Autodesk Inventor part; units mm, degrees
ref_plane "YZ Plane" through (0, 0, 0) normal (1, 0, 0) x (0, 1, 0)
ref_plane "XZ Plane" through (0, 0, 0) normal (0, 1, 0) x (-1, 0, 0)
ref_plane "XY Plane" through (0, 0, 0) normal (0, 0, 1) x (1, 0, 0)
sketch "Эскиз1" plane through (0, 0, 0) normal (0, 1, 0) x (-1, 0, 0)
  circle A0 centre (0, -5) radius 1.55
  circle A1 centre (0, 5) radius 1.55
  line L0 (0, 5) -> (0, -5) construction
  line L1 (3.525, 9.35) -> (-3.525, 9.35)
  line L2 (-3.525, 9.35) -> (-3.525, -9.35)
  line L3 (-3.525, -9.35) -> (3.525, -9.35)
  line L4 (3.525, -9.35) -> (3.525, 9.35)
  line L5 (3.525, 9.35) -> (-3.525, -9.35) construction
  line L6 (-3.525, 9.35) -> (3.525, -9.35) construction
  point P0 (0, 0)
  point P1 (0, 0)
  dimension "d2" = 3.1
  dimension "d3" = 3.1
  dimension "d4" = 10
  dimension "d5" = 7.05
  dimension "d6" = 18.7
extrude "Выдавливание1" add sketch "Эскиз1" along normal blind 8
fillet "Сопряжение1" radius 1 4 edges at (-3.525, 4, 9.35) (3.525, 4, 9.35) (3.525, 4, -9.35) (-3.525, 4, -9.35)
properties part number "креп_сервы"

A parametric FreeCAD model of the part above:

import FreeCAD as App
import Part
import Sketcher

V = App.Vector
Q = App.Units.Quantity


def edges_at(feature, points):
    """Names of the edges that pass closest to the given points."""
    edges = feature.Shape.Edges
    near = lambda p: min(range(len(edges)), key=lambda i: edges[i].distToShape(Part.Vertex(*p))[0])
    return sorted({f"Edge{near(p) + 1}" for p in points})

doc = App.newDocument("Part")
body = doc.addObject("PartDesign::Body", "Body")

sketch1 = body.newObject("Sketcher::SketchObject", "Sketch")
sketch1.AttachmentSupport = (doc.getObject("XZ_Plane"), [""])
sketch1.MapMode = "FlatFace"
sketch1.addGeometry(Part.LineSegment(V(-3.525, -9.35, 0), V(-3.525, 9.35, 0)), False)
sketch1.addGeometry(Part.LineSegment(V(-3.525, 9.35, 0), V(3.525, 9.35, 0)), False)
sketch1.addGeometry(Part.LineSegment(V(3.525, 9.35, 0), V(3.525, -9.35, 0)), False)
sketch1.addGeometry(Part.LineSegment(V(3.525, -9.35, 0), V(-3.525, -9.35, 0)), False)
sketch1.addGeometry(Part.Circle(V(0, -5, 0), V(0, 0, 1), 1.55), False)
sketch1.addGeometry(Part.Circle(V(0, 5, 0), V(0, 0, 1), 1.55), False)
sketch1.addConstraint(Sketcher.Constraint("Coincident", 0, 2, 1, 1))
sketch1.addConstraint(Sketcher.Constraint("Coincident", 1, 2, 2, 1))
sketch1.addConstraint(Sketcher.Constraint("Coincident", 2, 2, 3, 1))
sketch1.addConstraint(Sketcher.Constraint("Coincident", 3, 2, 0, 1))
sketch1.addConstraint(Sketcher.Constraint("Vertical", 0))
sketch1.addConstraint(Sketcher.Constraint("Horizontal", 1))
sketch1.addConstraint(Sketcher.Constraint("Vertical", 2))
sketch1.addConstraint(Sketcher.Constraint("Horizontal", 3))
sketch1.addConstraint(Sketcher.Constraint("Equal", 4, 5))
sketch1.addConstraint(Sketcher.Constraint("Symmetric", 4, 3, 5, 3, -1, 1))
sketch1.addConstraint(Sketcher.Constraint("Symmetric", 0, 2, 2, 2, -1, 1))
sketch1.addConstraint(Sketcher.Constraint("PointOnObject", 4, 3, -2))
sketch1.addConstraint(Sketcher.Constraint("Diameter", 4, Q("3.1 mm")))
sketch1.addConstraint(Sketcher.Constraint("DistanceY", 0, 1, 0, 2, Q("18.7 mm")))
sketch1.addConstraint(Sketcher.Constraint("DistanceY", 4, 3, 5, 3, Q("10 mm")))
sketch1.addConstraint(Sketcher.Constraint("DistanceX", 1, 1, 1, 2, Q("7.05 mm")))
pad1 = body.newObject("PartDesign::Pad", "Pad")
pad1.Profile = sketch1
pad1.Length = 8
pad1.Reversed = True
doc.recompute()

fillet = body.newObject("PartDesign::Fillet", "Fillet")
fillet.Base = (pad1, edges_at(pad1, [
    (-3.525, 4, 9.35),
    (3.525, 4, 9.35),
    (3.525, 4, -9.35),
    (-3.525, 4, -9.35),
]))
fillet.Radius = 1

doc.recompute()
